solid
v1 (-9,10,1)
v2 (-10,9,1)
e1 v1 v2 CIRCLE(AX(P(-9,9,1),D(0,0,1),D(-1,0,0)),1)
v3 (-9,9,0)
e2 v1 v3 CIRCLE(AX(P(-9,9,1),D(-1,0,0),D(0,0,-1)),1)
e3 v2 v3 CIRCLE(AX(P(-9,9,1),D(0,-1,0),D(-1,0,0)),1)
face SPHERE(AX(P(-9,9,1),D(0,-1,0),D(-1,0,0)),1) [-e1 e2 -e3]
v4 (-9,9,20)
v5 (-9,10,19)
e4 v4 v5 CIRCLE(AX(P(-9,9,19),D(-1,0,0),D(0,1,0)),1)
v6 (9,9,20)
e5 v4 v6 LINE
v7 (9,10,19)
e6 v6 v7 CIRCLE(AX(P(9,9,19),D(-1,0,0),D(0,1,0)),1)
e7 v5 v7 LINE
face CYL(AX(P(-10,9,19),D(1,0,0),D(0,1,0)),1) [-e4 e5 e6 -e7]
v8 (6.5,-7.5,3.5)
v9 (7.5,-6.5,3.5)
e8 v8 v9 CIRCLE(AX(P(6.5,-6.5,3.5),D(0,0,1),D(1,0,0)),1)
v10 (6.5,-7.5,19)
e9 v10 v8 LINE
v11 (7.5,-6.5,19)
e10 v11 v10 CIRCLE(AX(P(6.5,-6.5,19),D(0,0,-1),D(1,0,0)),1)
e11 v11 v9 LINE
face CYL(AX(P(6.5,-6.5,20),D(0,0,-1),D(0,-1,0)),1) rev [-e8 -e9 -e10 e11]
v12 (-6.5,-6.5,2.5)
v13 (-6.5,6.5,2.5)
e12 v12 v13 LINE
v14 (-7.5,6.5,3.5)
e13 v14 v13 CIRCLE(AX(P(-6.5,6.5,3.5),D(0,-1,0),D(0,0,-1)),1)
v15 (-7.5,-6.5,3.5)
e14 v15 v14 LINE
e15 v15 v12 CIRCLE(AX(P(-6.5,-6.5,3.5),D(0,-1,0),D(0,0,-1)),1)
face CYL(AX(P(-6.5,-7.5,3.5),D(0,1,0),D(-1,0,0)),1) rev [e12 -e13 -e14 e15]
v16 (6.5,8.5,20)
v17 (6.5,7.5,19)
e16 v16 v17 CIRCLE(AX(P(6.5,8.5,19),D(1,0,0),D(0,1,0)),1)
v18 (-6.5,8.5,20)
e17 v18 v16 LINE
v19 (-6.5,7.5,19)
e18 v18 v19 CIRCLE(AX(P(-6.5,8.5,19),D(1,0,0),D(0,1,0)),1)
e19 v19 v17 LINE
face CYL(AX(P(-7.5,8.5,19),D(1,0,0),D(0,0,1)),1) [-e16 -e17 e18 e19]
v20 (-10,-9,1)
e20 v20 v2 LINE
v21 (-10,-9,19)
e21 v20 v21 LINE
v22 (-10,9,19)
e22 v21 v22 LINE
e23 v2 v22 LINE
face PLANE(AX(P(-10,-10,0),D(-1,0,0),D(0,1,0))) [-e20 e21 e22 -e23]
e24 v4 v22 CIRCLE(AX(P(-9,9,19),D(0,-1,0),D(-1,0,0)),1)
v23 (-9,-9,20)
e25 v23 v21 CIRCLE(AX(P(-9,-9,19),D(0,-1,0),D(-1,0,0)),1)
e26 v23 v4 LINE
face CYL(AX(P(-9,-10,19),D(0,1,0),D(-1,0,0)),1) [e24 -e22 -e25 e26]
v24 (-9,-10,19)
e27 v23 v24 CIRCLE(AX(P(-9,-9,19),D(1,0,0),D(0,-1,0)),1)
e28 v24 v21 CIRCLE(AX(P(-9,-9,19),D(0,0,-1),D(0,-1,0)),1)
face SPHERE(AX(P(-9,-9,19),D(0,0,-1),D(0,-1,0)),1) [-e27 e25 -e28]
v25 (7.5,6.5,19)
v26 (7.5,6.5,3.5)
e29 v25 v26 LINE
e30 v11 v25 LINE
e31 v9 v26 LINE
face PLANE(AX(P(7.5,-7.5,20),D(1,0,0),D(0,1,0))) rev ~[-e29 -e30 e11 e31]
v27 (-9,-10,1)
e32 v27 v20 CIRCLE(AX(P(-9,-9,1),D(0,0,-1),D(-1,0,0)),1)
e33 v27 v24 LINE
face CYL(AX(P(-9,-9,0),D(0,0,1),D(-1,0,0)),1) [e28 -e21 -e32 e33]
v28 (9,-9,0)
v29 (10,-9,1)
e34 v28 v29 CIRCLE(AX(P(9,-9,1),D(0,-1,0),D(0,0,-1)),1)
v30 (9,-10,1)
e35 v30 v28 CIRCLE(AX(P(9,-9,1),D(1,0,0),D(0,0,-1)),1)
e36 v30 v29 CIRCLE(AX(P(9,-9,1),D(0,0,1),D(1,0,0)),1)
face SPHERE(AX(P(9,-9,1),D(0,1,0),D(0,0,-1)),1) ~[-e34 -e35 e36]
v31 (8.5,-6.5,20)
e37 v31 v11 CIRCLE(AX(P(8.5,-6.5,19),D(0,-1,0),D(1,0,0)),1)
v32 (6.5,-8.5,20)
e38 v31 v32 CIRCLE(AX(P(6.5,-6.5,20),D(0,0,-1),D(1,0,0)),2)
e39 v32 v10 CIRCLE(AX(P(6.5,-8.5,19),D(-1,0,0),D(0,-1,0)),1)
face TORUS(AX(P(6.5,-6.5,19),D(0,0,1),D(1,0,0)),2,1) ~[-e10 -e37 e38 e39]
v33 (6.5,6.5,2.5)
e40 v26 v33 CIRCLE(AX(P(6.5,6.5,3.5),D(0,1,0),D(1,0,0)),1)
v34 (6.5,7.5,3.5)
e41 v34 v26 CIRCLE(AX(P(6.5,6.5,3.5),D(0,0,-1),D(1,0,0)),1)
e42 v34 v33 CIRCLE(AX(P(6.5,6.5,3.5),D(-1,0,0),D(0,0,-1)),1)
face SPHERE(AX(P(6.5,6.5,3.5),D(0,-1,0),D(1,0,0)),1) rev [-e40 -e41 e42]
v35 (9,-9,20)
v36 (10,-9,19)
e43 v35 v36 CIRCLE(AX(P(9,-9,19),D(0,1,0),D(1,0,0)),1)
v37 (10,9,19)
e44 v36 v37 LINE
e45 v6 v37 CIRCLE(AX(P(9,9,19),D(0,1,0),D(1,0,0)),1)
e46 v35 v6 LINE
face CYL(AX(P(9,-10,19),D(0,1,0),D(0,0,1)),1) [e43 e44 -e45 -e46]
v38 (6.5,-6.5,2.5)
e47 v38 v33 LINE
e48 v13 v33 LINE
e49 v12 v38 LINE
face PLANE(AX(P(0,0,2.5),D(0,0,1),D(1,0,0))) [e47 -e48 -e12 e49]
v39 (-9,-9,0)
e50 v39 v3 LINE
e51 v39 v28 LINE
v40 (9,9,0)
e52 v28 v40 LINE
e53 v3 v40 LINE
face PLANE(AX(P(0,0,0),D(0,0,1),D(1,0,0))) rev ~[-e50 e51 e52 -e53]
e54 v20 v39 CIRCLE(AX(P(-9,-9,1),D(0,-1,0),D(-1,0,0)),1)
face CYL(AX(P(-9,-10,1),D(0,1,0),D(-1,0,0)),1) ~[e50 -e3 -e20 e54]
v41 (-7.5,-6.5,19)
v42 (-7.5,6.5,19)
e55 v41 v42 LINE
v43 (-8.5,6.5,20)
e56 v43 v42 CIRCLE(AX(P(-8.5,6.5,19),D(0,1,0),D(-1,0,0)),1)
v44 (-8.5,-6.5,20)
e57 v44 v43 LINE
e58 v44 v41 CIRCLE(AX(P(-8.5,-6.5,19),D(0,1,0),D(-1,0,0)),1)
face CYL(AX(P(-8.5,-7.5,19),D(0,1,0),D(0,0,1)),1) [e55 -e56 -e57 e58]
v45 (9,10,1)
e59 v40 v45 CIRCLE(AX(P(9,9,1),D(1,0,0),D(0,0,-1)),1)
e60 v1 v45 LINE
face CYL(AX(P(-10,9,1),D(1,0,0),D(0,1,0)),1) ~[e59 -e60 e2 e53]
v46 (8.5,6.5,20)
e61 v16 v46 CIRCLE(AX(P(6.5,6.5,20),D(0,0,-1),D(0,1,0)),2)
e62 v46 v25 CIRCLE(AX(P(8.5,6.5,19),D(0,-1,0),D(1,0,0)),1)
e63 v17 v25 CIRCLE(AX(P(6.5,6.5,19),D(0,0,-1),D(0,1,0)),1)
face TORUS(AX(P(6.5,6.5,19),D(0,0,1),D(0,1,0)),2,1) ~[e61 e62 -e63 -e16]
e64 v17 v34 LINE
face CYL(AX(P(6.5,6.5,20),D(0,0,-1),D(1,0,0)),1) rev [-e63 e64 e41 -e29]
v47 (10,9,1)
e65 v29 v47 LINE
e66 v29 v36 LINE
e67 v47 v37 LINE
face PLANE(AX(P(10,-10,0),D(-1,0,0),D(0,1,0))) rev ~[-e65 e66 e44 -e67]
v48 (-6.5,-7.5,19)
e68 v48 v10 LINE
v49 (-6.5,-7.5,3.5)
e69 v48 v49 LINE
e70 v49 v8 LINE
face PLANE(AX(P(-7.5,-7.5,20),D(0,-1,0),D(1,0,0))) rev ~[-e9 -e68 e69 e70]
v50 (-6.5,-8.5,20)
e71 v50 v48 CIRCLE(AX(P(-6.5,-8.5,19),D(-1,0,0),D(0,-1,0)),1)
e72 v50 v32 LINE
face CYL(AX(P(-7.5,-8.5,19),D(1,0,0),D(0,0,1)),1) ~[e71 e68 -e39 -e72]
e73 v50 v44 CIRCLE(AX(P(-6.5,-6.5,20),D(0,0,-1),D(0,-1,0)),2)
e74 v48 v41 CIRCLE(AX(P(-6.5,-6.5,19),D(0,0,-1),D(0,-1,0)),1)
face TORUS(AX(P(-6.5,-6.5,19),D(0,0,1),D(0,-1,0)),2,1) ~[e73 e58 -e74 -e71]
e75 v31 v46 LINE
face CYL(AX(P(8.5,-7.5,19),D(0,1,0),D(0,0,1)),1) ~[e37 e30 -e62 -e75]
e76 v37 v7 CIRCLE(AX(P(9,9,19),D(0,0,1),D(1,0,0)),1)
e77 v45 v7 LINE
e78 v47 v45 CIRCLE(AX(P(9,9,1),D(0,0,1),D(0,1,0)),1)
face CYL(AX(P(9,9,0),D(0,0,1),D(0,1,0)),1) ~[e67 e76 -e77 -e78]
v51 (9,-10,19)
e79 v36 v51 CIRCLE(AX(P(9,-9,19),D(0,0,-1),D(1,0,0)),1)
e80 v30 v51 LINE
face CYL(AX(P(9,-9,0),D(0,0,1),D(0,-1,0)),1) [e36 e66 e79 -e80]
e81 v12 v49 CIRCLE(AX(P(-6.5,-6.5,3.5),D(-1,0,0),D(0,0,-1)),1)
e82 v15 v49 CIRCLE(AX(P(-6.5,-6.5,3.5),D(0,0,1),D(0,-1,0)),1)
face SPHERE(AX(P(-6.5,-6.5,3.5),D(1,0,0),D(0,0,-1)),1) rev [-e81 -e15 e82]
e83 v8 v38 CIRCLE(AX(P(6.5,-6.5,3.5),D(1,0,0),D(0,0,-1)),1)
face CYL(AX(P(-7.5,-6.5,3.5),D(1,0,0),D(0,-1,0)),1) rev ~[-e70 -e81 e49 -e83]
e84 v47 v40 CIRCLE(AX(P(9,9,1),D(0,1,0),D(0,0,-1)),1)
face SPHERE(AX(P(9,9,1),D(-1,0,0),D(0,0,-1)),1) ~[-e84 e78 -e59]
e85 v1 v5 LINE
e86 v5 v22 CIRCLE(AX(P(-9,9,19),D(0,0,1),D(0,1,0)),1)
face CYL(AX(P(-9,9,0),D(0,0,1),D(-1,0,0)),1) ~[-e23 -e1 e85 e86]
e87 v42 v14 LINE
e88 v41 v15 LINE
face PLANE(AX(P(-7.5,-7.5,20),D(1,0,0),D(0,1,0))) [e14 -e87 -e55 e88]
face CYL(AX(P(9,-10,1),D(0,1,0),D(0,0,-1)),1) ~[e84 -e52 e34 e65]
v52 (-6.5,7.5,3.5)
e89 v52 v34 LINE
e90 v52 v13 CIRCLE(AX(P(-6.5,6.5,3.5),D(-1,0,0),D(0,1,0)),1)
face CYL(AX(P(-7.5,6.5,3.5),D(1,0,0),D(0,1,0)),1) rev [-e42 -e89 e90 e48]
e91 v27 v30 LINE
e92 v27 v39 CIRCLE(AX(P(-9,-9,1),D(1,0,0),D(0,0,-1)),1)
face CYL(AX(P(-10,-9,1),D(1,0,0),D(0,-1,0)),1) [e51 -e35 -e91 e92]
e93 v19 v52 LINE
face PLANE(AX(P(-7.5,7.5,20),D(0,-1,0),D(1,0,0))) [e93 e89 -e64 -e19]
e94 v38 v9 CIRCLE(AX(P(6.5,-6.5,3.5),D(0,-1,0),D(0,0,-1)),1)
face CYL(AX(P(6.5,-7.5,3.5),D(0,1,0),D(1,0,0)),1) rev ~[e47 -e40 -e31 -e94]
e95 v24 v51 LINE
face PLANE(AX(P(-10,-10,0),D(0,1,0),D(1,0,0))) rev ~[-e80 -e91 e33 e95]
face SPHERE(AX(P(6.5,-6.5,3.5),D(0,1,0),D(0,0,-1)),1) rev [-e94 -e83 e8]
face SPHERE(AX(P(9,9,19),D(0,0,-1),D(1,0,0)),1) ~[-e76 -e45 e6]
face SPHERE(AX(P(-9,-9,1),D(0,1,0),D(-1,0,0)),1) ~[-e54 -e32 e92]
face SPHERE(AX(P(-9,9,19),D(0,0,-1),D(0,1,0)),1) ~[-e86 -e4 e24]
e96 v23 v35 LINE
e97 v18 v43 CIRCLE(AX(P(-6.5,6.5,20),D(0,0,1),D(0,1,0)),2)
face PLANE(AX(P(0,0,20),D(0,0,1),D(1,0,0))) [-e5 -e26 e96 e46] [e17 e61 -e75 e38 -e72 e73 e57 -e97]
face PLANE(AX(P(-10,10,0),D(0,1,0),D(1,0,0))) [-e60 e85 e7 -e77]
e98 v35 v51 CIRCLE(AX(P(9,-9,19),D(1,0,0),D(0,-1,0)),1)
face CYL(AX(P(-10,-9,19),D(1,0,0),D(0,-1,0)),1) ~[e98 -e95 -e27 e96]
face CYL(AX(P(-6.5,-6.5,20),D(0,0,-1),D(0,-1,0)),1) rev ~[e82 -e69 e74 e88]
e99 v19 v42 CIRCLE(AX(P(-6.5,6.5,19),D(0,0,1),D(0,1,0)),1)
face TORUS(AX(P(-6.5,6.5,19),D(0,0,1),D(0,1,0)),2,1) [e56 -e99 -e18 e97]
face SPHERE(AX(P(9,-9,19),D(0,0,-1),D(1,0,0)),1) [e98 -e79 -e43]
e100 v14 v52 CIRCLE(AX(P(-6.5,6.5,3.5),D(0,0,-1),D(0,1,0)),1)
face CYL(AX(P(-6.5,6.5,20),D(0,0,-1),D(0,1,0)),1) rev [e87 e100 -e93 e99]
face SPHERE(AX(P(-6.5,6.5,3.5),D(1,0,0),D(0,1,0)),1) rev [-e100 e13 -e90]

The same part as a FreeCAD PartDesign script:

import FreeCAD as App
import Part
import Sketcher
from FreeCAD import Vector


def add_polygon(sketch, points):
    """Adds a closed chain of lines whose ends are joined by coincident constraints."""
    first, n = sketch.GeometryCount, len(points)
    for a, b in zip(points, points[1:] + points[:1]):
        sketch.addGeometry(Part.LineSegment(App.Vector(*a, 0), App.Vector(*b, 0)), False)
    for i in range(n):
        sketch.addConstraint(Sketcher.Constraint("Coincident", first + i, 2, first + (i + 1) % n, 1))

doc = App.newDocument("Part")
body = doc.addObject("PartDesign::Body", "Body")

sketch1 = body.newObject("Sketcher::SketchObject", "Sketch")
sketch1.AttachmentSupport = (doc.getObject("XY_Plane"), [""])
sketch1.MapMode = "FlatFace"
add_polygon(sketch1, [(-10, 10), (-10, -10), (10, -10), (10, 10)])
sketch1.addConstraint([
    Sketcher.Constraint("Vertical", 0),
    Sketcher.Constraint("Horizontal", 1),
    Sketcher.Constraint("Vertical", 2),
    Sketcher.Constraint("Horizontal", 3),
    Sketcher.Constraint("Symmetric", 0, 2, 2, 2, -1, 1),
    Sketcher.Constraint("Equal", 3, 0),
    Sketcher.Constraint("DistanceX", 1, 1, 1, 2, 20.0),
])
pad1 = body.newObject("PartDesign::Pad", "Pad")
pad1.Profile = sketch1
pad1.Length = 20

sketch2 = body.newObject("Sketcher::SketchObject", "Sketch001")
sketch2.AttachmentSupport = (doc.getObject("XY_Plane"), [""])
sketch2.MapMode = "FlatFace"
sketch2.AttachmentOffset = App.Placement(Vector(0, 0, 20), App.Rotation())
add_polygon(sketch2, [(-8, 8), (-8, -8), (8, -8), (8, 8)])
sketch2.addConstraint([
    Sketcher.Constraint("Vertical", 0),
    Sketcher.Constraint("Horizontal", 1),
    Sketcher.Constraint("Vertical", 2),
    Sketcher.Constraint("Horizontal", 3),
    Sketcher.Constraint("Symmetric", 0, 2, 2, 2, -1, 1),
    Sketcher.Constraint("Equal", 3, 0),
    Sketcher.Constraint("DistanceX", 1, 1, 1, 2, 15.0),
])
pocket1 = body.newObject("PartDesign::Pocket", "Pocket")
pocket1.Profile = sketch2
pocket1.Length = 17.5
doc.recompute()

fillet = body.newObject("PartDesign::Fillet", "Fillet")
fillet.Base = (pocket1, ["Edge1"])
fillet.UseAllEdges = True
fillet.Radius = 1

doc.recompute()
